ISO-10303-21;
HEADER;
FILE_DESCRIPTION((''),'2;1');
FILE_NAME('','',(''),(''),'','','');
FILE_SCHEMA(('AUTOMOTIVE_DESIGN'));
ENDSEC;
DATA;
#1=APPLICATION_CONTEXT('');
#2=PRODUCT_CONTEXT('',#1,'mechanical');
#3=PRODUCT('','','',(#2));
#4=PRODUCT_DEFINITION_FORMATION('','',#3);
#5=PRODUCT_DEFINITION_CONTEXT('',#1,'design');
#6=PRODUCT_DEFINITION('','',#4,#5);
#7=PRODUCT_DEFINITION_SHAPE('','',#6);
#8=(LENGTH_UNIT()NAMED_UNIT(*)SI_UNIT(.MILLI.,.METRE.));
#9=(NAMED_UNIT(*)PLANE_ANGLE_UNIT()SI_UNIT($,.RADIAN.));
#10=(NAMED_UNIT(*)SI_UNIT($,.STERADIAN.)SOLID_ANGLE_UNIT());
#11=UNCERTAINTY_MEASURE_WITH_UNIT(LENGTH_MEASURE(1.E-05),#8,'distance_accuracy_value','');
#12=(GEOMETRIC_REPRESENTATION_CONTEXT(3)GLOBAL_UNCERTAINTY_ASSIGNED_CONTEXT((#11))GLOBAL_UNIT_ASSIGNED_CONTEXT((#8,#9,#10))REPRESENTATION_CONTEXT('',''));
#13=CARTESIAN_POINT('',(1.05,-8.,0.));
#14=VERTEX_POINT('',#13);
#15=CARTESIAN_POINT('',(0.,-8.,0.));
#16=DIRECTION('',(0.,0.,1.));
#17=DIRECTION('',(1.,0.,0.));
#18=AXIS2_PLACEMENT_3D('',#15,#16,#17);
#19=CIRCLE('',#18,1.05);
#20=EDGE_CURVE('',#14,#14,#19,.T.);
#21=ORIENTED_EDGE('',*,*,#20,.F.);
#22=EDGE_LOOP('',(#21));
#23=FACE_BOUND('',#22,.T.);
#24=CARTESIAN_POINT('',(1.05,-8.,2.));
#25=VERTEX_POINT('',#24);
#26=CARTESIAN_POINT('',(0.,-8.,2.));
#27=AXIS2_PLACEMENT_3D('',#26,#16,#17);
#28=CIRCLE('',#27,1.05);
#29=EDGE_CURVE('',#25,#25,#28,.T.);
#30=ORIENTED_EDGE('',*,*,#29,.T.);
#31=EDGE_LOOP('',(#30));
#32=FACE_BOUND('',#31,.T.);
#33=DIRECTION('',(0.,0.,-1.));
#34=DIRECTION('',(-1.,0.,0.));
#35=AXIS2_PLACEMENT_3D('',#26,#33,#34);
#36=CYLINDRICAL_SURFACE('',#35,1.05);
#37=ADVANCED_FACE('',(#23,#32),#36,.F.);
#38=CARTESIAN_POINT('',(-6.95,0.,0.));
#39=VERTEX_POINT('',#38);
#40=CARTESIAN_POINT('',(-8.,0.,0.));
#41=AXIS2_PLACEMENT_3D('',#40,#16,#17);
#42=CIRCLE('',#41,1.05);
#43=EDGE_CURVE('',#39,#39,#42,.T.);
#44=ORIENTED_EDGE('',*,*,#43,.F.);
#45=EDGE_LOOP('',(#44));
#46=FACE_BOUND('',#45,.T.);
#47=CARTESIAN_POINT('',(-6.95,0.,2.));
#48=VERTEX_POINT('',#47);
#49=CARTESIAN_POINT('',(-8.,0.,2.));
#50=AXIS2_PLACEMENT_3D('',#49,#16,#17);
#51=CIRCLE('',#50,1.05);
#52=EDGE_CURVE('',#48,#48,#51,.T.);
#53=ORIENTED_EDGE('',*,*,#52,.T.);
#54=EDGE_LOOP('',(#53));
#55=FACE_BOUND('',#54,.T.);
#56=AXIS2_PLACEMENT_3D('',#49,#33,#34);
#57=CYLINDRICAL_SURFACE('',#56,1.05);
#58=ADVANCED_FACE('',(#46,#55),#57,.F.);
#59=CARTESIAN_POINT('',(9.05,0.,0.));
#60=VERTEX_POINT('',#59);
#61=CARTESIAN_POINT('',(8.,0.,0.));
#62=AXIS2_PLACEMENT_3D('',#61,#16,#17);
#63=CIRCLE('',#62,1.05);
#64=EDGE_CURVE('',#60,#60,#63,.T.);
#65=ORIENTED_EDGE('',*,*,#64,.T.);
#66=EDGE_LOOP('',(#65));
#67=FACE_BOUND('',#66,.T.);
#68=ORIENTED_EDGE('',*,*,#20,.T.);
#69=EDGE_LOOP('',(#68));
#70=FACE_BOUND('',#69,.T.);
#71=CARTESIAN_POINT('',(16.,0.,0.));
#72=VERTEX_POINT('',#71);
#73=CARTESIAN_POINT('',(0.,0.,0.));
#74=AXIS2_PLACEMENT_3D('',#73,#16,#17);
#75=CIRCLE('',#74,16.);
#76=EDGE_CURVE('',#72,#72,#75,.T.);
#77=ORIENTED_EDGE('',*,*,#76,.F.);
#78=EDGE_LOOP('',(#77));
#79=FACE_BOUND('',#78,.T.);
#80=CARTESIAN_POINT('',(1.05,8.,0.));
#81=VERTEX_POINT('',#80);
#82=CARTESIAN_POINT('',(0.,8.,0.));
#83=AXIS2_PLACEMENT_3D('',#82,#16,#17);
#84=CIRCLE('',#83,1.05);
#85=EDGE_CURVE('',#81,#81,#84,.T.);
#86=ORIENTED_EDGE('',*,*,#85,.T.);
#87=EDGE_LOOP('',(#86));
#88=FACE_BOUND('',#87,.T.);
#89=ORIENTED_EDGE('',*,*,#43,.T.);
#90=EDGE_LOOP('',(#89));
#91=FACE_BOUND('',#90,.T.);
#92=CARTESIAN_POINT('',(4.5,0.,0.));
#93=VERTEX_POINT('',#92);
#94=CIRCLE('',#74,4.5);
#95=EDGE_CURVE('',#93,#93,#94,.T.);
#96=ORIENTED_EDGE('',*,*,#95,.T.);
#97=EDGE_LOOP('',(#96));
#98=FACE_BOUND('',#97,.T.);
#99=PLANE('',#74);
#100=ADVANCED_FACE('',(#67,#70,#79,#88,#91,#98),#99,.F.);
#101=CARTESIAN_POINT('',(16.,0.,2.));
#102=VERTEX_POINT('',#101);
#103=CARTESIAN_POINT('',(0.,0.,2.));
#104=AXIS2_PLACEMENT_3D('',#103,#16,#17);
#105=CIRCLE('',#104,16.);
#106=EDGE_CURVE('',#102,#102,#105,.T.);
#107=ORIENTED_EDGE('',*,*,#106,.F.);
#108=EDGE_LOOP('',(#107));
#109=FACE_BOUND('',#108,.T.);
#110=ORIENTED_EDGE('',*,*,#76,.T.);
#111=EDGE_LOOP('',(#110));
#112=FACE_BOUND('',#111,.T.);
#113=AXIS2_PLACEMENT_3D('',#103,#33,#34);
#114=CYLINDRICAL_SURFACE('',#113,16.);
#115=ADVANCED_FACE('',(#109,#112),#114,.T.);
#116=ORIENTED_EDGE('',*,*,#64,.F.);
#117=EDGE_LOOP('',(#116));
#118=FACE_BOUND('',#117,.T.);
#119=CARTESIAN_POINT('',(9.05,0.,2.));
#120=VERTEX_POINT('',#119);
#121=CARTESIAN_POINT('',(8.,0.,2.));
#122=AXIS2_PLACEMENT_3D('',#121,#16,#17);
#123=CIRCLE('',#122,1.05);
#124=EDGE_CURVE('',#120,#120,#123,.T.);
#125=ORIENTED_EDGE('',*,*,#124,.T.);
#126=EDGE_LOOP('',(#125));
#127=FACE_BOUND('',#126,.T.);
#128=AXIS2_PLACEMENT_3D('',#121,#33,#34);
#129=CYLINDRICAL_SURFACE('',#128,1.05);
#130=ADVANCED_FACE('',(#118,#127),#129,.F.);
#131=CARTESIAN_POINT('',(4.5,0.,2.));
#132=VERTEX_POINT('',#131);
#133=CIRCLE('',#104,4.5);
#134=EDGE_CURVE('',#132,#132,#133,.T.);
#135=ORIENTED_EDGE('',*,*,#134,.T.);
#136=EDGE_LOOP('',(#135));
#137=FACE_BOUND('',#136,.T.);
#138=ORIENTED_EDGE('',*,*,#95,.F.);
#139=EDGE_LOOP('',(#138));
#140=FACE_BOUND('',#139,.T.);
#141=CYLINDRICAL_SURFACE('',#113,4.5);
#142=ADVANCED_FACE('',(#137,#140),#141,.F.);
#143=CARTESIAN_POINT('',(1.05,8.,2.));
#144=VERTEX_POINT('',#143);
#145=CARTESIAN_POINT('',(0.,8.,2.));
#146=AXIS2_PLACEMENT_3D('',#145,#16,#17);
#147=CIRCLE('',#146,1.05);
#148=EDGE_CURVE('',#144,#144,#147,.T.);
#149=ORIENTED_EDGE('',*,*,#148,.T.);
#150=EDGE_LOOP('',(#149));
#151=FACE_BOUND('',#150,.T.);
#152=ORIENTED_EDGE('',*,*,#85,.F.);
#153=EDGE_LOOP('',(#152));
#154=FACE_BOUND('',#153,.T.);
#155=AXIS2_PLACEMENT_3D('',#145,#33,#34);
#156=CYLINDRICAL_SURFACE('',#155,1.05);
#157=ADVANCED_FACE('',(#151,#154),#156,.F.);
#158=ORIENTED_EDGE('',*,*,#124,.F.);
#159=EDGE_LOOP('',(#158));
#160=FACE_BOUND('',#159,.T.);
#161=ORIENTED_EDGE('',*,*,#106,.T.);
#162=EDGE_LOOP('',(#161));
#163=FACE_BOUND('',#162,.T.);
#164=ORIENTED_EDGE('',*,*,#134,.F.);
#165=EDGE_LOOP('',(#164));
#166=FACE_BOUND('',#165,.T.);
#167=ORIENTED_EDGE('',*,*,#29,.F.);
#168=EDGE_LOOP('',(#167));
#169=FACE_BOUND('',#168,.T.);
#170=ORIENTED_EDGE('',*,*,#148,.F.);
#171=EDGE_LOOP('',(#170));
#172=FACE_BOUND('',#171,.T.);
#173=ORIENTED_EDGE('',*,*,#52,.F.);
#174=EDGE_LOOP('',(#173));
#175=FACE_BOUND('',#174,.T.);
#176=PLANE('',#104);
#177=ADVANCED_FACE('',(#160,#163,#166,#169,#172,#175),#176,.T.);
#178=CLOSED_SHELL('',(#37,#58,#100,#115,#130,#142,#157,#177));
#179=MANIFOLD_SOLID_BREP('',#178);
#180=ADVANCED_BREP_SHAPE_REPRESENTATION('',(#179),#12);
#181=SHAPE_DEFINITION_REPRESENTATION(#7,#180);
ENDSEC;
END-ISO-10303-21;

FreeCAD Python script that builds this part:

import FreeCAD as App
import Part
import Sketcher

V = App.Vector
Q = App.Units.Quantity

doc = App.newDocument("Part")
params = doc.addObject("Spreadsheet::Sheet", "Params")
for row, (alias, value) in enumerate([
    ("sketch1_diameter", "32 mm"),
    ("sketch1_diameter2", "9 mm"),
    ("sketch1_diameter3", "2.1 mm"),
    ("pad1_length", "2 mm"),
], start=1):
    params.set(f"A{row}", alias)
    params.set(f"B{row}", "=" + value)
    params.setAlias(f"B{row}", alias)

body = doc.addObject("PartDesign::Body", "Body")

sketch1 = body.newObject("Sketcher::SketchObject", "Sketch")
sketch1.AttachmentSupport = (doc.getObject("XY_Plane"), [""])
sketch1.MapMode = "FlatFace"
sketch1.addGeometry(Part.Circle(V(0, 0, 0), V(0, 0, 1), 16), False)
sketch1.addGeometry(Part.Circle(V(0, -8, 0), V(0, 0, 1), 1.1), False)
sketch1.addGeometry(Part.Circle(V(-8, 0, 0), V(0, 0, 1), 1.1), False)
sketch1.addGeometry(Part.Circle(V(0, 0, 0), V(0, 0, 1), 4.5), False)
sketch1.addGeometry(Part.Circle(V(8, 0, 0), V(0, 0, 1), 1.1), False)
sketch1.addGeometry(Part.Circle(V(0, 8, 0), V(0, 0, 1), 1.1), False)
sketch1.addConstraint(Sketcher.Constraint("Coincident", 0, 3, -1, 1))
sketch1.addConstraint(Sketcher.Constraint("Coincident", 3, 3, -1, 1))
sketch1.addConstraint(Sketcher.Constraint("Equal", 1, 2))
sketch1.addConstraint(Sketcher.Constraint("Equal", 2, 4))
sketch1.addConstraint(Sketcher.Constraint("Equal", 4, 5))
sketch1.addConstraint(Sketcher.Constraint("Symmetric", 2, 3, 4, 3, -1, 1))
sketch1.addConstraint(Sketcher.Constraint("Symmetric", 1, 3, 5, 3, -1, 1))
sketch1.addConstraint(Sketcher.Constraint("PointOnObject", 1, 3, -2))
sketch1.addConstraint(Sketcher.Constraint("PointOnObject", 2, 3, -1))
sketch1.addConstraint(Sketcher.Constraint("Diameter", 0, Q("32 mm")))
sketch1.addConstraint(Sketcher.Constraint("Diameter", 3, Q("9 mm")))
sketch1.addConstraint(Sketcher.Constraint("Diameter", 1, Q("2.1 mm")))
sketch1.addConstraint(Sketcher.Constraint("DistanceY", 1, 3, -1, 1, Q("8 mm")))
sketch1.addConstraint(Sketcher.Constraint("DistanceX", 2, 3, -1, 1, Q("8 mm")))
sketch1.setExpression("Constraints[9]", "Params.sketch1_diameter")
sketch1.setExpression("Constraints[10]", "Params.sketch1_diameter2")
sketch1.setExpression("Constraints[11]", "Params.sketch1_diameter3")
pad1 = body.newObject("PartDesign::Pad", "Pad")
pad1.Profile = sketch1
pad1.setExpression("Length", "Params.pad1_length")

doc.recompute()
